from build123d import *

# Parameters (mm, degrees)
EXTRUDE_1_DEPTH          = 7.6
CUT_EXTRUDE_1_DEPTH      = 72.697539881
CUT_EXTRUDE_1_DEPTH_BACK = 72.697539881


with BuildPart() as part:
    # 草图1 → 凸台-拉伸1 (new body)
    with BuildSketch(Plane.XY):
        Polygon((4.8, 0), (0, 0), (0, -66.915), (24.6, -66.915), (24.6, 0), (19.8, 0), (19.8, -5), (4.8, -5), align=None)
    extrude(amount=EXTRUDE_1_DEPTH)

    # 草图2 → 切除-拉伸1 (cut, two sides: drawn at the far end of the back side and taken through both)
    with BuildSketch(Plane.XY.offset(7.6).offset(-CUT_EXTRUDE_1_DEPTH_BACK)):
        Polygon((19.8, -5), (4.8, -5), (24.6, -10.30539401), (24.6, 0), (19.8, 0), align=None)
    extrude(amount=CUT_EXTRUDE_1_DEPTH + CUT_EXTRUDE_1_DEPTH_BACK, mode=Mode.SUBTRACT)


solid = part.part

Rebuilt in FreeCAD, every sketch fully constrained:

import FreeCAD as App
import Part
import Sketcher
Q = App.Units.Quantity


def add_polygon(sketch, points):
    """Adds a closed chain of lines whose ends are joined by coincident constraints."""
    first, n = sketch.GeometryCount, len(points)
    for a, b in zip(points, points[1:] + points[:1]):
        sketch.addGeometry(Part.LineSegment(App.Vector(*a, 0), App.Vector(*b, 0)), False)
    for i in range(n):
        sketch.addConstraint(Sketcher.Constraint("Coincident", first + i, 2, first + (i + 1) % n, 1))

doc = App.newDocument("Part")
body = doc.addObject("PartDesign::Body", "Body")

sketch1 = body.newObject("Sketcher::SketchObject", "Sketch")
sketch1.AttachmentSupport = (doc.getObject("XY_Plane"), [""])
sketch1.MapMode = "FlatFace"
add_polygon(sketch1, [(4.8, 0), (0, 0), (0, -66.9), (24.6, -66.9), (24.6, 0), (19.8, 0), (19.8, -5), (4.8, -5)])
sketch1.addConstraint([
    Sketcher.Constraint("Horizontal", 0),
    Sketcher.Constraint("Vertical", 1),
    Sketcher.Constraint("Horizontal", 2),
    Sketcher.Constraint("Vertical", 3),
    Sketcher.Constraint("Horizontal", 4),
    Sketcher.Constraint("Vertical", 5),
    Sketcher.Constraint("Horizontal", 6),
    Sketcher.Constraint("Vertical", 7),
    Sketcher.Constraint("Coincident", 0, 2, -1, 1),
    Sketcher.Constraint("PointOnObject", 3, 2, -1),
    Sketcher.Constraint("Equal", 0, 4),
    Sketcher.Constraint("DistanceX", 6, 2, 6, 1, 15.0),
    Sketcher.Constraint("DistanceY", 5, 2, 5, 1, 5.0),
    Sketcher.Constraint("DistanceX", 0, 2, 0, 1, 4.8),
    Sketcher.Constraint("DistanceY", 1, 2, 1, 1, 66.915),
])
pad1 = body.newObject("PartDesign::Pad", "Pad")
pad1.Profile = sketch1
pad1.Length = 7.6

sketch2 = body.newObject("Sketcher::SketchObject", "Sketch001")
sketch2.AttachmentSupport = (doc.getObject("XY_Plane"), [""])
sketch2.MapMode = "FlatFace"
sketch2.AttachmentOffset = App.Placement(App.Vector(0, 0, 7.6), App.Rotation())
add_polygon(sketch2, [(19.8, -5), (4.8, -5), (24.6, -10.3), (24.6, 0), (19.8, 0)])
sketch2.addConstraint([
    Sketcher.Constraint("Horizontal", 0),
    Sketcher.Constraint("Vertical", 2),
    Sketcher.Constraint("Horizontal", 3),
    Sketcher.Constraint("Vertical", 4),
    Sketcher.Constraint("PointOnObject", 2, 2, -1),
    Sketcher.Constraint("DistanceX", 0, 2, 0, 1, 15.0),
    Sketcher.Constraint("DistanceY", 4, 2, 4, 1, 5.0),
    Sketcher.Constraint("Angle", 1, Q("-15 deg")),
    Sketcher.Constraint("DistanceX", 3, 2, 3, 1, 4.8),
    Sketcher.Constraint("DistanceX", -1, 1, 0, 2, 4.8),
])
pocket1 = body.newObject("PartDesign::Pocket", "Pocket")
pocket1.Profile = sketch2
pocket1.Type = "ThroughAll"
pocket1.Midplane = True

doc.recompute()
